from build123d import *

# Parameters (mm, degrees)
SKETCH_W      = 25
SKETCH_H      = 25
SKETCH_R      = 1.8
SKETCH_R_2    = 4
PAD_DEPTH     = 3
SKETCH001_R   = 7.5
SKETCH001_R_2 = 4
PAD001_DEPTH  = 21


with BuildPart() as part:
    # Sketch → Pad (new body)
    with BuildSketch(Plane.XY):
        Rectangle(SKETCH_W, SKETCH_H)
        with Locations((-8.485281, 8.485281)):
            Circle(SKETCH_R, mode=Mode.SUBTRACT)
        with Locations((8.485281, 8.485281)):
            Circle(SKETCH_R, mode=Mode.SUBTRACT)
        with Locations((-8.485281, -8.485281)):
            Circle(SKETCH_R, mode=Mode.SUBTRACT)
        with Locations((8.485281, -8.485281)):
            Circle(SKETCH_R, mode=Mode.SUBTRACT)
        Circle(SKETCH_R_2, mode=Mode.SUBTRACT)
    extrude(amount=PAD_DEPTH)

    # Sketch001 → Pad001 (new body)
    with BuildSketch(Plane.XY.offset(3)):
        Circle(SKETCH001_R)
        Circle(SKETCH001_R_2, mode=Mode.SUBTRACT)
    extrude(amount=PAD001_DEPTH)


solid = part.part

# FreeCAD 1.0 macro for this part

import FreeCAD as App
import Part
import Sketcher
from FreeCAD import Vector
Q = App.Units.Quantity


def add_polygon(sketch, points):
    """Adds a closed chain of lines whose ends are joined by coincident constraints."""
    first, n = sketch.GeometryCount, len(points)
    for a, b in zip(points, points[1:] + points[:1]):
        sketch.addGeometry(Part.LineSegment(App.Vector(*a, 0), App.Vector(*b, 0)), False)
    for i in range(n):
        sketch.addConstraint(Sketcher.Constraint("Coincident", first + i, 2, first + (i + 1) % n, 1))

doc = App.newDocument("Part")
body = doc.addObject("PartDesign::Body", "Body")

sketch1 = body.newObject("Sketcher::SketchObject", "Sketch")
sketch1.AttachmentSupport = (doc.getObject("XY_Plane"), [""])
sketch1.MapMode = "FlatFace"
add_polygon(sketch1, [(-12.5, 12.5), (-12.5, -12.5), (12.5, -12.5), (12.5, 12.5)])
sketch1.addGeometry(Part.Circle(Vector(-8.5, -8.5, 0), Vector(0, 0, 1), 1.8), False)
sketch1.addGeometry(Part.Circle(Vector(8.5, -8.5, 0), Vector(0, 0, 1), 1.8), False)
sketch1.addGeometry(Part.Circle(Vector(-8.5, 8.5, 0), Vector(0, 0, 1), 1.8), False)
sketch1.addGeometry(Part.Circle(Vector(0, 0, 0), Vector(0, 0, 1), 4), False)
sketch1.addGeometry(Part.Circle(Vector(8.5, 8.5, 0), Vector(0, 0, 1), 1.8), False)
sketch1.addConstraint([
    Sketcher.Constraint("Vertical", 0),
    Sketcher.Constraint("Horizontal", 1),
    Sketcher.Constraint("Vertical", 2),
    Sketcher.Constraint("Horizontal", 3),
    Sketcher.Constraint("Coincident", 7, 3, -1, 1),
    Sketcher.Constraint("Equal", 4, 5),
    Sketcher.Constraint("Equal", 5, 6),
    Sketcher.Constraint("Equal", 6, 8),
    Sketcher.Constraint("Symmetric", 5, 3, 6, 3, -1, 1),
    Sketcher.Constraint("Symmetric", 4, 3, 8, 3, -1, 1),
    Sketcher.Constraint("Symmetric", 0, 2, 2, 2, -1, 1),
    Sketcher.Constraint("Symmetric", 4, 3, 5, 3, -2),
    Sketcher.Constraint("Equal", 3, 0),
    Sketcher.Constraint("Diameter", 7, Q("8 mm")),
    Sketcher.Constraint("Diameter", 4, Q("3.6 mm")),
    Sketcher.Constraint("DistanceX", 1, 1, 1, 2, Q("25 mm")),
    Sketcher.Constraint("DistanceX", 4, 3, -1, 1, Q("8.485281 mm")),
    Sketcher.Constraint("DistanceY", 4, 3, -1, 1, Q("8.485281 mm")),
])
pad1 = body.newObject("PartDesign::Pad", "Pad")
pad1.Profile = sketch1
pad1.Length = 3

sketch2 = body.newObject("Sketcher::SketchObject", "Sketch001")
sketch2.AttachmentSupport = (doc.getObject("XY_Plane"), [""])
sketch2.MapMode = "FlatFace"
sketch2.AttachmentOffset = App.Placement(Vector(0, 0, 3), App.Rotation())
sketch2.addGeometry([
    Part.Circle(Vector(0, 0, 0), Vector(0, 0, 1), 7.5),
    Part.Circle(Vector(0, 0, 0), Vector(0, 0, 1), 4),
], False)
sketch2.addConstraint([
    Sketcher.Constraint("Coincident", 0, 3, -1, 1),
    Sketcher.Constraint("Coincident", 1, 3, -1, 1),
    Sketcher.Constraint("Diameter", 0, Q("15 mm")),
    Sketcher.Constraint("Diameter", 1, Q("8 mm")),
])
pad2 = body.newObject("PartDesign::Pad", "Pad001")
pad2.Profile = sketch2
pad2.Length = 21

doc.recompute()
